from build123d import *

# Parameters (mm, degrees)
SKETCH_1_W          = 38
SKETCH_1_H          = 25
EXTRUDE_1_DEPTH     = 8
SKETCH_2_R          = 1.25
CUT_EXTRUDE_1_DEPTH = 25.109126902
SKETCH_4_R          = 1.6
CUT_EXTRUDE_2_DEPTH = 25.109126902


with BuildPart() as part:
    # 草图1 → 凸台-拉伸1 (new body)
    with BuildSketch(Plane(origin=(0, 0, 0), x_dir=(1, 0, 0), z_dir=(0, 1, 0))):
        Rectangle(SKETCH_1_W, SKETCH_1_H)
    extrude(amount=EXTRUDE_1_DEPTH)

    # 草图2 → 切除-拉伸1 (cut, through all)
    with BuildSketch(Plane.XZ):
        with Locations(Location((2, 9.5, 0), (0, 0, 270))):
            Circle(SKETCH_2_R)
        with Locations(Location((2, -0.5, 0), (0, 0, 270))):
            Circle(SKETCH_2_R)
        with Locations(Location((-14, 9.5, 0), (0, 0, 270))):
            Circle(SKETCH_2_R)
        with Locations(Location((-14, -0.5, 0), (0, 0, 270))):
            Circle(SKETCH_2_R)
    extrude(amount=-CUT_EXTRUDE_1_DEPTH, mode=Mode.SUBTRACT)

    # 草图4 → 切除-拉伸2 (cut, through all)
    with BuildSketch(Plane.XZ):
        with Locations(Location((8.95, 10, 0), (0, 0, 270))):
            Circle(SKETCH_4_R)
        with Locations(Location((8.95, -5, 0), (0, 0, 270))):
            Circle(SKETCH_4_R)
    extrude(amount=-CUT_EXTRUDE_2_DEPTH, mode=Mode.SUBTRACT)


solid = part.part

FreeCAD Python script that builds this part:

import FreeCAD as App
import Part
import Sketcher


def add_polygon(sketch, points):
    """Adds a closed chain of lines whose ends are joined by coincident constraints."""
    first, n = sketch.GeometryCount, len(points)
    for a, b in zip(points, points[1:] + points[:1]):
        sketch.addGeometry(Part.LineSegment(App.Vector(*a, 0), App.Vector(*b, 0)), False)
    for i in range(n):
        sketch.addConstraint(Sketcher.Constraint("Coincident", first + i, 2, first + (i + 1) % n, 1))

doc = App.newDocument("Part")
body = doc.addObject("PartDesign::Body", "Body")

# Sketch on XZ plane
sketch1 = doc.addObject("Sketcher::SketchObject", "Sketch")
body.addObject(sketch1)
sketch1.AttachmentSupport = (doc.XZ_Plane, [""])
sketch1.MapMode = "FlatFace"
add_polygon(sketch1, [(-19, -12), (-19, 12), (19, 12), (19, -12)])  # lines 0-3
sketch1.addConstraint(Sketcher.Constraint("Vertical", 0))
sketch1.addConstraint(Sketcher.Constraint("Horizontal", 1))
sketch1.addConstraint(Sketcher.Constraint("Vertical", 2))
sketch1.addConstraint(Sketcher.Constraint("Horizontal", 3))
sketch1.addConstraint(Sketcher.Constraint("Symmetric", 0, 2, 2, 2, -1, 1))
sketch1.addConstraint(Sketcher.Constraint("DistanceX", 1, 1, 1, 2, 38.0))
sketch1.addConstraint(Sketcher.Constraint("DistanceY", 0, 1, 0, 2, 25.0))
pad1 = doc.addObject("PartDesign::Pad", "Pad")
body.addObject(pad1)
pad1.Profile = sketch1
pad1.Length = 8
pad1.Reversed = True

# Sketch on XZ plane
sketch2 = doc.addObject("Sketcher::SketchObject", "Sketch001")
body.addObject(sketch2)
sketch2.AttachmentSupport = (doc.XZ_Plane, [""])
sketch2.MapMode = "FlatFace"
sketch2.addGeometry(Part.Circle(App.Vector(2, 9.5, 0), App.Vector(0, 0, 1), 1.2), False)
sketch2.addGeometry(Part.Circle(App.Vector(2, -0.5, 0), App.Vector(0, 0, 1), 1.2), False)
sketch2.addGeometry(Part.Circle(App.Vector(-14, 9.5, 0), App.Vector(0, 0, 1), 1.2), False)
sketch2.addGeometry(Part.Circle(App.Vector(-14, -0.5, 0), App.Vector(0, 0, 1), 1.2), False)
sketch2.addConstraint(Sketcher.Constraint("Equal", 0, 1))
sketch2.addConstraint(Sketcher.Constraint("Equal", 1, 2))
sketch2.addConstraint(Sketcher.Constraint("Equal", 2, 3))
sketch2.addConstraint(Sketcher.Constraint("Horizontal", 0, 3, 2, 3))
sketch2.addConstraint(Sketcher.Constraint("Horizontal", 1, 3, 3, 3))
sketch2.addConstraint(Sketcher.Constraint("Vertical", 0, 3, 1, 3))
sketch2.addConstraint(Sketcher.Constraint("Vertical", 2, 3, 3, 3))
sketch2.addConstraint(Sketcher.Constraint("Diameter", 0, 2.5))
sketch2.addConstraint(Sketcher.Constraint("DistanceX", -1, 1, 0, 3, 2.0))
sketch2.addConstraint(Sketcher.Constraint("DistanceX", 2, 3, -1, 1, 14.0))
sketch2.addConstraint(Sketcher.Constraint("DistanceY", 1, 3, 0, 3, 10.0))
sketch2.addConstraint(Sketcher.Constraint("DistanceY", -1, 1, 0, 3, 9.5))
pocket1 = doc.addObject("PartDesign::Pocket", "Pocket")
body.addObject(pocket1)
pocket1.Profile = sketch2
pocket1.Type = "ThroughAll"

# Sketch on XZ plane
sketch3 = doc.addObject("Sketcher::SketchObject", "Sketch002")
body.addObject(sketch3)
sketch3.AttachmentSupport = (doc.XZ_Plane, [""])
sketch3.MapMode = "FlatFace"
sketch3.addGeometry(Part.Circle(App.Vector(8.9, 10, 0), App.Vector(0, 0, 1), 1.6), False)
sketch3.addGeometry(Part.Circle(App.Vector(8.9, -5, 0), App.Vector(0, 0, 1), 1.6), False)
sketch3.addConstraint(Sketcher.Constraint("Equal", 0, 1))
sketch3.addConstraint(Sketcher.Constraint("Vertical", 0, 3, 1, 3))
sketch3.addConstraint(Sketcher.Constraint("Diameter", 0, 3.2))
sketch3.addConstraint(Sketcher.Constraint("DistanceY", -1, 1, 0, 3, 10.0))
sketch3.addConstraint(Sketcher.Constraint("DistanceY", 1, 3, -1, 1, 5.0))
sketch3.addConstraint(Sketcher.Constraint("DistanceX", -1, 1, 0, 3, 8.95))
pocket2 = doc.addObject("PartDesign::Pocket", "Pocket001")
body.addObject(pocket2)
pocket2.Profile = sketch3
pocket2.Type = "ThroughAll"

doc.recompute()
